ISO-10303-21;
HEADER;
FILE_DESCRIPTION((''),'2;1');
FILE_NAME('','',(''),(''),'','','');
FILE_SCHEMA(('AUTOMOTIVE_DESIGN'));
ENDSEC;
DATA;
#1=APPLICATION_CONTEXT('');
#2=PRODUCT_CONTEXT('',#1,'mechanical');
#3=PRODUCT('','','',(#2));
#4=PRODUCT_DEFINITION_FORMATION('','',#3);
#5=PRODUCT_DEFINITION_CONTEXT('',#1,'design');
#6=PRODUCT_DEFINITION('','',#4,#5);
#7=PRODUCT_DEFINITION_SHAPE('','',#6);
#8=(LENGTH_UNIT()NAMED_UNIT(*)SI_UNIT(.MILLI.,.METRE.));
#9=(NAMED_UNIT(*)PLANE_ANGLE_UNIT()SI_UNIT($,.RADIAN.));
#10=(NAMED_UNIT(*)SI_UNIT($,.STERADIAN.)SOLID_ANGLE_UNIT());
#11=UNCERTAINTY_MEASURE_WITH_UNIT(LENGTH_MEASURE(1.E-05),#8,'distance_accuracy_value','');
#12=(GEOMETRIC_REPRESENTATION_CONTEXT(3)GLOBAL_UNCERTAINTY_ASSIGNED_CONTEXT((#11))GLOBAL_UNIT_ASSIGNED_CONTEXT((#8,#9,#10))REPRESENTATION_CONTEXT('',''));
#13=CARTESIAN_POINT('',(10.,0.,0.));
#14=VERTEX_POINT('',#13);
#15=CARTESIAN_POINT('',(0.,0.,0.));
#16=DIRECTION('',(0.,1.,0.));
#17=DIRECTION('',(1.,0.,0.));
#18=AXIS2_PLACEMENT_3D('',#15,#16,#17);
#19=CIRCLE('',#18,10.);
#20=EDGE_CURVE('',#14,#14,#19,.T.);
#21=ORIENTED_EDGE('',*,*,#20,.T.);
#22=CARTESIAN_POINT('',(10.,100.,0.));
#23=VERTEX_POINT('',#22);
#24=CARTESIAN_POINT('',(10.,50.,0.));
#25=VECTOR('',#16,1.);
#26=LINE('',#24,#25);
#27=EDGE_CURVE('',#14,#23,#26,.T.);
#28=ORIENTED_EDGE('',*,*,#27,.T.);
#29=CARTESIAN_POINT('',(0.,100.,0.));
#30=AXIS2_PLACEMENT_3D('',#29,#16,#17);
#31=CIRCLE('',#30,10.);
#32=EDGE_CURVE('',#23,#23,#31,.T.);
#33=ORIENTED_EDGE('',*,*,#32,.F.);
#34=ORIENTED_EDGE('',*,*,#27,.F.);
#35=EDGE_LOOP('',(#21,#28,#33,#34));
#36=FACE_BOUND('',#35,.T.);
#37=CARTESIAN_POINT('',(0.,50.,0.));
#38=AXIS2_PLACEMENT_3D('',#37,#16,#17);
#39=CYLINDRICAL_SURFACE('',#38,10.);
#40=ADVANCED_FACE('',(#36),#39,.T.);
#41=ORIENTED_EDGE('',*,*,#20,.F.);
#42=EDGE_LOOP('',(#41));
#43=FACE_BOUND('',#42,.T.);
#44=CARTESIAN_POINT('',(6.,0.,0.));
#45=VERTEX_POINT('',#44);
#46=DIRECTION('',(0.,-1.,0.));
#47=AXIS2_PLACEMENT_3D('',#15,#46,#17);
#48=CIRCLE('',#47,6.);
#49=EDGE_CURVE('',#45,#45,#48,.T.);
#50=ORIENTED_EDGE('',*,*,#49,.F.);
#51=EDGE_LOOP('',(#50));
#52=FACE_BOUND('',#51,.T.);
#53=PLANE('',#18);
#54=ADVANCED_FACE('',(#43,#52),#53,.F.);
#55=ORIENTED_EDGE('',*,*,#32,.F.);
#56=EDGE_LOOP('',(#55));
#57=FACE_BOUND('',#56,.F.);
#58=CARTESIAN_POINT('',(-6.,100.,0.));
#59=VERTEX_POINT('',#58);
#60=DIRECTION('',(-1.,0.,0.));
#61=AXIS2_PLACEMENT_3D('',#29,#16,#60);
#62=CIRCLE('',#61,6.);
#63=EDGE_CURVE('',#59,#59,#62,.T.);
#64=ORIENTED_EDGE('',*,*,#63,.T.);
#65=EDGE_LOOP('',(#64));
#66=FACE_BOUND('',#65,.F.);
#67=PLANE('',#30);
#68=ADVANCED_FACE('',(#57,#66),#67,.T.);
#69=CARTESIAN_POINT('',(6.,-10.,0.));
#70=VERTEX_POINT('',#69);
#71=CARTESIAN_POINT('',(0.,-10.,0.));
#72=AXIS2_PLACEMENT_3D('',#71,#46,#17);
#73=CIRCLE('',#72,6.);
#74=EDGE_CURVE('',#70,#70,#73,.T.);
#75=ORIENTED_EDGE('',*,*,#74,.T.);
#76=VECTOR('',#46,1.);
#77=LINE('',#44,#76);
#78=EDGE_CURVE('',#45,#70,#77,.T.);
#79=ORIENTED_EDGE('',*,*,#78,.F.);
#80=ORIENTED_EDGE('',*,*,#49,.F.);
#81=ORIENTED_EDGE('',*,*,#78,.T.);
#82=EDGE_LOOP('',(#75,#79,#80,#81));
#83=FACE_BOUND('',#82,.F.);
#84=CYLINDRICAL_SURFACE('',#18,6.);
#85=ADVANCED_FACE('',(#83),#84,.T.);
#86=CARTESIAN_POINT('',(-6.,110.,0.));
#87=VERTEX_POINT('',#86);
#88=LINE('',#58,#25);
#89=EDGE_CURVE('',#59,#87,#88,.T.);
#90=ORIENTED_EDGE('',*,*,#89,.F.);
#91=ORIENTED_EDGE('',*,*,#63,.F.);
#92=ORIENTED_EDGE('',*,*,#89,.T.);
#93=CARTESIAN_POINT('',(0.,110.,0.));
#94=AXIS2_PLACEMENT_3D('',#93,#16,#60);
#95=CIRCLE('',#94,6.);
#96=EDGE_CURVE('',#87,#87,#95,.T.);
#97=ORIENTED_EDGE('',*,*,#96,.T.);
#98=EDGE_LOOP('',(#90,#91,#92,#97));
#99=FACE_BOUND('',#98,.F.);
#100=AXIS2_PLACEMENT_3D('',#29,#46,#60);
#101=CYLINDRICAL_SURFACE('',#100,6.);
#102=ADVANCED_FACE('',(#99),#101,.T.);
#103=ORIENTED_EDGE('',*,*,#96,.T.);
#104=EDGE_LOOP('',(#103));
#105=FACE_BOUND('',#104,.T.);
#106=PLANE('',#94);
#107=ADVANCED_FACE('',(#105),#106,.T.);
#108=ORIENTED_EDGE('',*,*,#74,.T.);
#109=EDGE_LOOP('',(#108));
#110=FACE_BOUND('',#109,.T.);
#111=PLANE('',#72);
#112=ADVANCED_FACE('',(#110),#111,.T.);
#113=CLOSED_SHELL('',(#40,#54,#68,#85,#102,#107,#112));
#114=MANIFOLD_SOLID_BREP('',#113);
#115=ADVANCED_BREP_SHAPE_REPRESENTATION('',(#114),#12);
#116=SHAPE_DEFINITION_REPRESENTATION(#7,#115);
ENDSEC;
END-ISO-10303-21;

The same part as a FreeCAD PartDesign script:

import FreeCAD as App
import Part
import Sketcher

doc = App.newDocument("Part")
body = doc.addObject("PartDesign::Body", "Body")

# Sketch on XY plane
sketch1 = body.newObject("Sketcher::SketchObject", "Sketch")
sketch1.AttachmentSupport = (doc.getObject("XY_Plane"), [""])
sketch1.MapMode = "FlatFace"
sketch1.addGeometry([
    Part.LineSegment(App.Vector(0, 100, 0), App.Vector(0, 0, 0)),
    Part.LineSegment(App.Vector(0, 0, 0), App.Vector(10, 0, 0)),
    Part.LineSegment(App.Vector(10, 0, 0), App.Vector(10, 100, 0)),
    Part.LineSegment(App.Vector(10, 100, 0), App.Vector(0, 100, 0)),
], False)
sketch1.addConstraint([
    Sketcher.Constraint("Coincident", 0, 2, 1, 1),
    Sketcher.Constraint("Coincident", 1, 2, 2, 1),
    Sketcher.Constraint("Coincident", 2, 2, 3, 1),
    Sketcher.Constraint("Coincident", 3, 2, 0, 1),
    Sketcher.Constraint("Vertical", 0),
    Sketcher.Constraint("Horizontal", 1),
    Sketcher.Constraint("Vertical", 2),
    Sketcher.Constraint("Horizontal", 3),
    Sketcher.Constraint("Coincident", 0, 2, -1, 1),
    Sketcher.Constraint("DistanceX", 1, 1, 1, 2, 10.0),
    Sketcher.Constraint("DistanceY", 0, 2, 0, 1, 100.0),
])
revolution = body.newObject("PartDesign::Revolution", "Revolution")
revolution.Profile = sketch1
revolution.ReferenceAxis = (sketch1, ["V_Axis"])
revolution.Angle = 360

# Sketch on XZ plane
sketch2 = body.newObject("Sketcher::SketchObject", "Sketch001")
sketch2.AttachmentSupport = (doc.getObject("XZ_Plane"), [""])
sketch2.MapMode = "FlatFace"
sketch2.addGeometry(Part.Circle(App.Vector(0, 0, 0), App.Vector(0, 0, 1), 6), False)
sketch2.addConstraint([
    Sketcher.Constraint("Coincident", 0, 3, -1, 1),
    Sketcher.Constraint("Diameter", 0, 12.0),
])
pad1 = body.newObject("PartDesign::Pad", "Pad")
pad1.Profile = sketch2
pad1.Length = 10

# Sketch on XZ plane
sketch3 = body.newObject("Sketcher::SketchObject", "Sketch002")
sketch3.AttachmentSupport = (doc.getObject("XZ_Plane"), [""])
sketch3.MapMode = "FlatFace"
sketch3.AttachmentOffset = App.Placement(App.Vector(0, 0, -100), App.Rotation())
sketch3.addGeometry(Part.Circle(App.Vector(0, 0, 0), App.Vector(0, 0, 1), 6), False)
sketch3.addConstraint([
    Sketcher.Constraint("Coincident", 0, 3, -1, 1),
    Sketcher.Constraint("Diameter", 0, 12.0),
])
pad2 = body.newObject("PartDesign::Pad", "Pad001")
pad2.Profile = sketch3
pad2.Length = 10
pad2.Reversed = True

doc.recompute()
